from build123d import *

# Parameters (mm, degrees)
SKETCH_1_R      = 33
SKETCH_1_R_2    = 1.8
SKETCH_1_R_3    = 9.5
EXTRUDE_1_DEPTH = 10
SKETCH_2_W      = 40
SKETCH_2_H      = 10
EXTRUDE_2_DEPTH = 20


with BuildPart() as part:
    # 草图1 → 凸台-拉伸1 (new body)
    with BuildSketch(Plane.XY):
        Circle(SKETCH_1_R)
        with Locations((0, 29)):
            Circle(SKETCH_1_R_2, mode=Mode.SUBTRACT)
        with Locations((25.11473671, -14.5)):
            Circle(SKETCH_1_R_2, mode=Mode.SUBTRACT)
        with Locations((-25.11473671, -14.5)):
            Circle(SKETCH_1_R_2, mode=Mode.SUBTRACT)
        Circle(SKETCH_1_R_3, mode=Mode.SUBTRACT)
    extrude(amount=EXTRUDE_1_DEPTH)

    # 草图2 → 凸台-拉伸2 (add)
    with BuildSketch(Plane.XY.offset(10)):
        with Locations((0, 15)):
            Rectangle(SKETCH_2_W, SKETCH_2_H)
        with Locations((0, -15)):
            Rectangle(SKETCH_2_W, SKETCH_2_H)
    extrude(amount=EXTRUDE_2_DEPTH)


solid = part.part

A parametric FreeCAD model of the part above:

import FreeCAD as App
import Part
import Sketcher

V = App.Vector
Q = App.Units.Quantity


def add_polygon(sketch, points):
    """Adds a closed chain of lines whose ends are joined by coincident constraints."""
    first, n = sketch.GeometryCount, len(points)
    for a, b in zip(points, points[1:] + points[:1]):
        sketch.addGeometry(Part.LineSegment(App.Vector(*a, 0), App.Vector(*b, 0)), False)
    for i in range(n):
        sketch.addConstraint(Sketcher.Constraint("Coincident", first + i, 2, first + (i + 1) % n, 1))

doc = App.newDocument("Part")
params = doc.addObject("Spreadsheet::Sheet", "Params")
for row, (alias, value) in enumerate([
    ("sketch1_diameter", "66 mm"),
    ("sketch1_diameter2", "19 mm"),
    ("sketch1_diameter3", "3.6 mm"),
    ("pad1_length", "10 mm"),
    ("sketch2_width", "40 mm"),
    ("sketch2_height", "10 mm"),
    ("pad2_length", "20 mm"),
], start=1):
    params.set(f"A{row}", alias)
    params.set(f"B{row}", "=" + value)
    params.setAlias(f"B{row}", alias)

body = doc.addObject("PartDesign::Body", "Body")

# Sketch on XY plane
sketch1 = body.newObject("Sketcher::SketchObject", "Sketch")
sketch1.AttachmentSupport = (doc.getObject("XY_Plane"), [""])
sketch1.MapMode = "FlatFace"
sketch1.addGeometry([
    Part.Circle(V(0, 0, 0), V(0, 0, 1), 33),  # 0
    Part.Circle(V(-25.1, -14.5, 0), V(0, 0, 1), 1.8),  # 1
    Part.Circle(V(25.1, -14.5, 0), V(0, 0, 1), 1.8),  # 2
    Part.Circle(V(0, 0, 0), V(0, 0, 1), 9.5),  # 3
    Part.Circle(V(0, 29, 0), V(0, 0, 1), 1.8),  # 4
], False)
sketch1.addConstraint([
    Sketcher.Constraint("Coincident", 0, 3, -1, 1),
    Sketcher.Constraint("Coincident", 3, 3, -1, 1),
    Sketcher.Constraint("Equal", 1, 2),
    Sketcher.Constraint("Equal", 2, 4),
    Sketcher.Constraint("Symmetric", 1, 3, 2, 3, -2),
    Sketcher.Constraint("PointOnObject", 4, 3, -2),
    Sketcher.Constraint("Diameter", 0, Q("66 mm")),
    Sketcher.Constraint("Diameter", 3, Q("19 mm")),
    Sketcher.Constraint("Diameter", 1, Q("3.6 mm")),
    Sketcher.Constraint("DistanceY", -1, 1, 4, 3, Q("29 mm")),
    Sketcher.Constraint("DistanceY", 1, 3, -1, 1, Q("14.5 mm")),
    Sketcher.Constraint("DistanceX", 1, 3, -1, 1, Q("25.114737 mm")),
])
sketch1.setExpression("Constraints[6]", "Params.sketch1_diameter")
sketch1.setExpression("Constraints[7]", "Params.sketch1_diameter2")
sketch1.setExpression("Constraints[8]", "Params.sketch1_diameter3")
pad1 = body.newObject("PartDesign::Pad", "Pad")
pad1.Profile = sketch1
pad1.setExpression("Length", "Params.pad1_length")

# Sketch on XY plane
sketch2 = body.newObject("Sketcher::SketchObject", "Sketch001")
sketch2.AttachmentSupport = (doc.getObject("XY_Plane"), [""])
sketch2.MapMode = "FlatFace"
sketch2.AttachmentOffset = App.Placement(V(0, 0, 10), App.Rotation())
add_polygon(sketch2, [(-20, 20), (-20, 10), (20, 10), (20, 20)])  # lines 0-3
add_polygon(sketch2, [(-20, -10), (-20, -20), (20, -20), (20, -10)])  # lines 4-7
sketch2.addConstraint([
    Sketcher.Constraint("Vertical", 0),
    Sketcher.Constraint("Horizontal", 1),
    Sketcher.Constraint("Vertical", 2),
    Sketcher.Constraint("Horizontal", 3),
    Sketcher.Constraint("Vertical", 4),
    Sketcher.Constraint("Horizontal", 5),
    Sketcher.Constraint("Vertical", 6),
    Sketcher.Constraint("Horizontal", 7),
    Sketcher.Constraint("Symmetric", 2, 2, 4, 2, -1, 1),
    Sketcher.Constraint("Symmetric", 0, 2, 6, 2, -1, 1),
    Sketcher.Constraint("Vertical", 3, 2, 4, 2),
    Sketcher.Constraint("DistanceX", 1, 1, 1, 2, Q("40 mm")),
    Sketcher.Constraint("DistanceY", 0, 2, 0, 1, Q("10 mm")),
    Sketcher.Constraint("DistanceY", -1, 1, 0, 2, Q("10 mm")),
])
sketch2.setExpression("Constraints[19]", "Params.sketch2_width")
sketch2.setExpression("Constraints[20]", "Params.sketch2_height")
pad2 = body.newObject("PartDesign::Pad", "Pad001")
pad2.Profile = sketch2
pad2.setExpression("Length", "Params.pad2_length")

doc.recompute()
